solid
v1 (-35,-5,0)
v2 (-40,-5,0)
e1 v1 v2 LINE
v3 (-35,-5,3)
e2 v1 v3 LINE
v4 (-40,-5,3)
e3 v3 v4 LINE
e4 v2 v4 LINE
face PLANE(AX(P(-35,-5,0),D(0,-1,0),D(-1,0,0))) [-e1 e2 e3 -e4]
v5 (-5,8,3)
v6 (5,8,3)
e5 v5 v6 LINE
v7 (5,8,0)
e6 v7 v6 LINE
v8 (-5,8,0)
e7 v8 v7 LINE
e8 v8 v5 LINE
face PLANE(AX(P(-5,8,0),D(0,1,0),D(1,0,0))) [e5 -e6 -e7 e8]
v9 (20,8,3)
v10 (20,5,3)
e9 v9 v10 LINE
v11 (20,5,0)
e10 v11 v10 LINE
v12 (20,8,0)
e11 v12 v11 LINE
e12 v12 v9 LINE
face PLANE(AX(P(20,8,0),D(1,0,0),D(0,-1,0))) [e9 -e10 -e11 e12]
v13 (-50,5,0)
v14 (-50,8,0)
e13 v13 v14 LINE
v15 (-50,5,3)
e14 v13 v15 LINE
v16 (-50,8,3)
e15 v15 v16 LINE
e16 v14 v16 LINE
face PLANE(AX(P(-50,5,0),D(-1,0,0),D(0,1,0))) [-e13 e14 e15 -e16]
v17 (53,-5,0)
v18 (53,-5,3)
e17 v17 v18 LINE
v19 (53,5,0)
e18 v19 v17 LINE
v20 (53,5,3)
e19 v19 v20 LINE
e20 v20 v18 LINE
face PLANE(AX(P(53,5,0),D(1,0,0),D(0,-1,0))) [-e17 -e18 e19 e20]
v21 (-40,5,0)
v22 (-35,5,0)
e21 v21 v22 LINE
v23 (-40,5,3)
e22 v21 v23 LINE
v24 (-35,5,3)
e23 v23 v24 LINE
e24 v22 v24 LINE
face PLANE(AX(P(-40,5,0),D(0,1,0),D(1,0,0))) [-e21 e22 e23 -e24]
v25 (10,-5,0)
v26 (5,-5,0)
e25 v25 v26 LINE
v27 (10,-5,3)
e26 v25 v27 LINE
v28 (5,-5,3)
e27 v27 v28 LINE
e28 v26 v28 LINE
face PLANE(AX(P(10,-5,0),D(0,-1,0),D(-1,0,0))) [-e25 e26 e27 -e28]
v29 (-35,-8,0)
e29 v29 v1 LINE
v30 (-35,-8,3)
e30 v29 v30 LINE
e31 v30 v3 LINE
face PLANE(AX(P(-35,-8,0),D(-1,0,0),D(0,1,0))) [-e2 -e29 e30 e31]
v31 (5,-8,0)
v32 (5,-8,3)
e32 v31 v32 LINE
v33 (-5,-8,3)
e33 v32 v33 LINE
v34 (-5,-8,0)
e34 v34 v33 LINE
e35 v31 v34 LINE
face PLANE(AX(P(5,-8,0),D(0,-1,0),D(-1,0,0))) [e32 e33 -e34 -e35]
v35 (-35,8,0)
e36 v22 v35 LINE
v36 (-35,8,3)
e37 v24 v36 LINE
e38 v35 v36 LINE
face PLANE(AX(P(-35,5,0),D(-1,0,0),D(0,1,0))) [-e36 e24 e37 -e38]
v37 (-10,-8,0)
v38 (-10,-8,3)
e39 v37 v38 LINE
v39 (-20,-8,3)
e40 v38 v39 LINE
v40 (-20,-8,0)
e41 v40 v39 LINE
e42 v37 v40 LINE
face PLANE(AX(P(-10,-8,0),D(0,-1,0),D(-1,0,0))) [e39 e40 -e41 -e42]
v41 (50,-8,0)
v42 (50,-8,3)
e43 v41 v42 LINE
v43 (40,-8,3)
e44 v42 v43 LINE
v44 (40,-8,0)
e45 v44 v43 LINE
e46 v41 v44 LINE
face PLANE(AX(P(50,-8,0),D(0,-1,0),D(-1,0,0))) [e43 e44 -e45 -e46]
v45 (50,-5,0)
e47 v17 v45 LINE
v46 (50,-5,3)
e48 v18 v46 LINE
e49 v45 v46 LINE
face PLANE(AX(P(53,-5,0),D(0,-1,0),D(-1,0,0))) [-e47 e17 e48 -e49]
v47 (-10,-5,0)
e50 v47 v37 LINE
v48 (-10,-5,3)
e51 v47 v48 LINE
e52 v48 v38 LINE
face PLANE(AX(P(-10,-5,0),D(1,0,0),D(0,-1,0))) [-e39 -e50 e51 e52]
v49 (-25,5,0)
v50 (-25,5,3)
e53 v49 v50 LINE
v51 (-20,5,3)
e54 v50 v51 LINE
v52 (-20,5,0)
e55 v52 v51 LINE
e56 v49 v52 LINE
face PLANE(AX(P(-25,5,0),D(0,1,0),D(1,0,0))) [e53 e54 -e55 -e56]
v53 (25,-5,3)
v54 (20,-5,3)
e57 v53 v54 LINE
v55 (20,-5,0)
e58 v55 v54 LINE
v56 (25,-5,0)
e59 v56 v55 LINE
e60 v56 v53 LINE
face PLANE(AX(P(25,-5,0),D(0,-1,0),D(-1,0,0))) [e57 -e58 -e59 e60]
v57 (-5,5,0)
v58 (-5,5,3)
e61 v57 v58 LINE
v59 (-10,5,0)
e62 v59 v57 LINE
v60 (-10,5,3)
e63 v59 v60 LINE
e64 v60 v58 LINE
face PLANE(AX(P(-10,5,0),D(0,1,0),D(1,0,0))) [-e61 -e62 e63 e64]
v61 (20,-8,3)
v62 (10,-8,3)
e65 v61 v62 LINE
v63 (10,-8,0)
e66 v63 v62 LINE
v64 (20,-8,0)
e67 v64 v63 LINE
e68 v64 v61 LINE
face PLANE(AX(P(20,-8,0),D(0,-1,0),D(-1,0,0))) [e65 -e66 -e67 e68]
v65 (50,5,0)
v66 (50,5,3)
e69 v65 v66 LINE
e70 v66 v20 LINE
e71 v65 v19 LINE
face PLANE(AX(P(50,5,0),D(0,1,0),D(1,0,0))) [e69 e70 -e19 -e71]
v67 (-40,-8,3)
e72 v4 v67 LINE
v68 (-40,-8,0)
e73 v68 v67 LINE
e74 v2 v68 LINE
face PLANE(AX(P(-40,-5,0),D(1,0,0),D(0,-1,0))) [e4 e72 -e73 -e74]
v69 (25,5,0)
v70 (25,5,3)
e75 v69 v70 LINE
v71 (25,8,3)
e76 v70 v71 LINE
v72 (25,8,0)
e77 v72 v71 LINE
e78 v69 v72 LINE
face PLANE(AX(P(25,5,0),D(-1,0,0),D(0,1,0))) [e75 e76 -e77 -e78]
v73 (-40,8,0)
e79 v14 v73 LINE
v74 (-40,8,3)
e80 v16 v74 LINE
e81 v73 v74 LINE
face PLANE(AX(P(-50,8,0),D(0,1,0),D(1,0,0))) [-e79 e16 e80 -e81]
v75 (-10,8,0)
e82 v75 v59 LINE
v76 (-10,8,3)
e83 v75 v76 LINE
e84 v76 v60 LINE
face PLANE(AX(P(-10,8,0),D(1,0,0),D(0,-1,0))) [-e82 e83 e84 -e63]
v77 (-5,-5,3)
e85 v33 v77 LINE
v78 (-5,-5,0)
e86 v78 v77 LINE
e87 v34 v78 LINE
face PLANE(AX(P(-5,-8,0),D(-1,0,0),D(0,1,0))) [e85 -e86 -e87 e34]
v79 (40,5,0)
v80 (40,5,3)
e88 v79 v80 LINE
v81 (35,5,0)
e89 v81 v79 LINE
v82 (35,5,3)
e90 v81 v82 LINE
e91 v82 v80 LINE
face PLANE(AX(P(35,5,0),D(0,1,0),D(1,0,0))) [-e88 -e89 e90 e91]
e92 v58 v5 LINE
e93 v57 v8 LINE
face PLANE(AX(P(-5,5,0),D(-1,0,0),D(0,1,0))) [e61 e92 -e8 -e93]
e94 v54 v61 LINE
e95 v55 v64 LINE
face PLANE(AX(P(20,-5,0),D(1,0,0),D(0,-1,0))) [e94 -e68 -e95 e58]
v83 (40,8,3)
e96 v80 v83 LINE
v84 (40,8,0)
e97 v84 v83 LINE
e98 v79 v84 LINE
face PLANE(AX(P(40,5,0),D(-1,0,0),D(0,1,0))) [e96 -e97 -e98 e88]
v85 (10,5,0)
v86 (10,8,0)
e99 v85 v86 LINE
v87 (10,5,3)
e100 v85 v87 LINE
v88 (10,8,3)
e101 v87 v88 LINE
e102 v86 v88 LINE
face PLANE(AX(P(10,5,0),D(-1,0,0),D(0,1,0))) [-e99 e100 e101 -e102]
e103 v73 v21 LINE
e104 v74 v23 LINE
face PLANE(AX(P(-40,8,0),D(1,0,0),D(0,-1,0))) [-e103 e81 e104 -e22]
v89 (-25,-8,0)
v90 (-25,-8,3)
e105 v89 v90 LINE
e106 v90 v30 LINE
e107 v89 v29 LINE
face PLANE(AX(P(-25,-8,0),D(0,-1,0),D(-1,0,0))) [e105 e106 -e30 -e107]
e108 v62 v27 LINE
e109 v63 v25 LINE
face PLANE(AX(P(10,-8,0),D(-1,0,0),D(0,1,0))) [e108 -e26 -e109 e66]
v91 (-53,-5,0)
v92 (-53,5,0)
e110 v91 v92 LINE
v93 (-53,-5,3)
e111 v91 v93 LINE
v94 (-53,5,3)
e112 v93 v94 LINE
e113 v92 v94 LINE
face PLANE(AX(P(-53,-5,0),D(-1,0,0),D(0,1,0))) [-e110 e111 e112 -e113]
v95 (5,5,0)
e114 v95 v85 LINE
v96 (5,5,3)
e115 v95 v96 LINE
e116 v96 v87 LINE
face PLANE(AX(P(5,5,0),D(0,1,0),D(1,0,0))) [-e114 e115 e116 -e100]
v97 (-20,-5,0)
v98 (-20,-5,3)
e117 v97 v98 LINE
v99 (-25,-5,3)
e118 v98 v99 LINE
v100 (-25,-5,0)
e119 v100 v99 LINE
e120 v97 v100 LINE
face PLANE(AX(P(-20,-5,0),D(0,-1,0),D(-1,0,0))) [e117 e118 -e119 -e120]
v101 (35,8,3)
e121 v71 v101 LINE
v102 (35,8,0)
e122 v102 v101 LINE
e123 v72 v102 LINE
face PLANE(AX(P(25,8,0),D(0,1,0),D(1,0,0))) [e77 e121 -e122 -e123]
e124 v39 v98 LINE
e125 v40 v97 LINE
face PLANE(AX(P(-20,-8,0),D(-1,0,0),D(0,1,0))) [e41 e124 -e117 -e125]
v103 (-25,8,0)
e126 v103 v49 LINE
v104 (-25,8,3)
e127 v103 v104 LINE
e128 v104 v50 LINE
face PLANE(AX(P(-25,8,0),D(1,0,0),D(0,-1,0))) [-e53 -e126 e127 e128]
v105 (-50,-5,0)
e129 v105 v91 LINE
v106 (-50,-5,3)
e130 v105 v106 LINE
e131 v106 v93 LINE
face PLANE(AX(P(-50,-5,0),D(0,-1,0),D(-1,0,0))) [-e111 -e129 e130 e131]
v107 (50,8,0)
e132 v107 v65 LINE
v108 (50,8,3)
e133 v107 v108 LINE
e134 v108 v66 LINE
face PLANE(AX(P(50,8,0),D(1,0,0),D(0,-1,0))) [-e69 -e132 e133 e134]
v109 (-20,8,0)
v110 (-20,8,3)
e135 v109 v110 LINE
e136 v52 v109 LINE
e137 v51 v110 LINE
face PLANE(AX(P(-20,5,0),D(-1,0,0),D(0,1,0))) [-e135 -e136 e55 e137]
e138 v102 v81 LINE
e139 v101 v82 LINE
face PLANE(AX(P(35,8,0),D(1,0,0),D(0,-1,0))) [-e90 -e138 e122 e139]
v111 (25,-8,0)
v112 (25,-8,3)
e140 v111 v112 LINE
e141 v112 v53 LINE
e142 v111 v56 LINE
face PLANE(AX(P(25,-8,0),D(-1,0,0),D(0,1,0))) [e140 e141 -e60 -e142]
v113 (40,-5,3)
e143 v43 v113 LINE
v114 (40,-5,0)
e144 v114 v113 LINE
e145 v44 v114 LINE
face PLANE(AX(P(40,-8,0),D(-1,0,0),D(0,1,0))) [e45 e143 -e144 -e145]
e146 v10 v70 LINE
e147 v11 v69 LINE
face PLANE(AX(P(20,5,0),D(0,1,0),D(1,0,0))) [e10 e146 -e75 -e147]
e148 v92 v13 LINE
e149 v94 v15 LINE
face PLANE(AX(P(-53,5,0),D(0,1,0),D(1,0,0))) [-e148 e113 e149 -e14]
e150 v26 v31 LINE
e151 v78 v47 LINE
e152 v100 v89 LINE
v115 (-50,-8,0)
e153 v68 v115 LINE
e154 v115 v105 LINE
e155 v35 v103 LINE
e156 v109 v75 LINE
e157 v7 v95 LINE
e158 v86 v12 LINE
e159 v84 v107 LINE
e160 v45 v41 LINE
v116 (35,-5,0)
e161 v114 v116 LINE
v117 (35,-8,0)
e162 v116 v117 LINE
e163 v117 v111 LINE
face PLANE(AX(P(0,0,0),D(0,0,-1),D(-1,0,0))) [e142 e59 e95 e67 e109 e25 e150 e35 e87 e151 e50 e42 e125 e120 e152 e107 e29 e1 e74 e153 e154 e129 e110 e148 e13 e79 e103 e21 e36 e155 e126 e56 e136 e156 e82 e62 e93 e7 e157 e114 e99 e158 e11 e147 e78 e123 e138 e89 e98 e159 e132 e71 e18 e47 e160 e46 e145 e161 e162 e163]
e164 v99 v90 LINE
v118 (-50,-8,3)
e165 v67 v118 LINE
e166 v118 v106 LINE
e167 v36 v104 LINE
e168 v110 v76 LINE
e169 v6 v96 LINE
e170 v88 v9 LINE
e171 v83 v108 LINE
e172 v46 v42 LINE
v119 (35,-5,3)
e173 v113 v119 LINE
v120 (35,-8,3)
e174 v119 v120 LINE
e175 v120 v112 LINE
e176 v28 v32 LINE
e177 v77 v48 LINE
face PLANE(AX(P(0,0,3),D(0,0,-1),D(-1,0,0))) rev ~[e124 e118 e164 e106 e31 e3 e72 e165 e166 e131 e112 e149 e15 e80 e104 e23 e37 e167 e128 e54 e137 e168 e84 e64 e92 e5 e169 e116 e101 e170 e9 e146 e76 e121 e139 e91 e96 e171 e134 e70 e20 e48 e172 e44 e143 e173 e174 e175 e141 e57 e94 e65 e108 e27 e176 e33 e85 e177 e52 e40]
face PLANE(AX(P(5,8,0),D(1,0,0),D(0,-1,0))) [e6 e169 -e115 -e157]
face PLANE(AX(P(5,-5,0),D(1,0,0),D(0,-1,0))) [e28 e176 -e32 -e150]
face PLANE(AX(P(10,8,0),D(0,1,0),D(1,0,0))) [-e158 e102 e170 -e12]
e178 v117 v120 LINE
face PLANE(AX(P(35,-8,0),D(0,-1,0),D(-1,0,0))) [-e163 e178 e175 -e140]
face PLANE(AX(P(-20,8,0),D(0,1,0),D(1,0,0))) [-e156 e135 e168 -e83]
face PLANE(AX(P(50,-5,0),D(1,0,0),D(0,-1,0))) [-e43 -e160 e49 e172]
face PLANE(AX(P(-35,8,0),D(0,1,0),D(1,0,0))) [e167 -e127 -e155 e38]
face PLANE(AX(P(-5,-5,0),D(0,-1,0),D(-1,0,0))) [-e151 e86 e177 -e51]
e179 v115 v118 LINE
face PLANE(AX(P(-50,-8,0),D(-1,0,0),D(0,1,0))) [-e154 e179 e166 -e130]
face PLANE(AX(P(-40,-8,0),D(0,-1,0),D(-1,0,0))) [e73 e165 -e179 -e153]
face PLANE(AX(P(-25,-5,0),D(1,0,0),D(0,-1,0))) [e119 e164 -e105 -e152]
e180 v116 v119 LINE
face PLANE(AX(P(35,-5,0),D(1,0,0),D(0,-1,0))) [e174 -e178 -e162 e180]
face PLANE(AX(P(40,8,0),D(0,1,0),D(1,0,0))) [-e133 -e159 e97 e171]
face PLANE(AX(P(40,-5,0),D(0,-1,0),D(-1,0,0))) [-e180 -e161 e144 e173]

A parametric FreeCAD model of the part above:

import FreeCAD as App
import Part
import Sketcher
from FreeCAD import Vector


def add_polygon(sketch, points):
    """Adds a closed chain of lines whose ends are joined by coincident constraints."""
    first, n = sketch.GeometryCount, len(points)
    for a, b in zip(points, points[1:] + points[:1]):
        sketch.addGeometry(Part.LineSegment(App.Vector(*a, 0), App.Vector(*b, 0)), False)
    for i in range(n):
        sketch.addConstraint(Sketcher.Constraint("Coincident", first + i, 2, first + (i + 1) % n, 1))

doc = App.newDocument("Part")
body = doc.addObject("PartDesign::Body", "Body")

sketch1 = doc.addObject("Sketcher::SketchObject", "Sketch")
body.addObject(sketch1)
sketch1.AttachmentSupport = (doc.XY_Plane, [""])
sketch1.MapMode = "FlatFace"
add_polygon(sketch1, [(-35, 8), (-35, 5), (-40, 5), (-40, 8), (-50, 8), (-50, 5), (-53, 5), (-53, -5), (-50, -5), (-50, -8), (-40, -8), (-40, -5), (-35, -5), (-35, -8), (-25, -8), (-25, -5), (-20, -5), (-20, -8), (-10, -8), (-10, -5), (-5, -5), (-5, -8), (5, -8), (5, -5), (10, -5), (10, -8), (20, -8), (20, -5), (25, -5), (25, -8), (35, -8), (35, -5), (40, -5), (40, -8), (50, -8), (50, -5), (53, -5), (53, 5), (50, 5), (50, 8), (40, 8), (40, 5), (35, 5), (35, 8), (25, 8), (25, 5), (20, 5), (20, 8), (10, 8), (10, 5), (5, 5), (5, 8), (-5, 8), (-5, 5), (-10, 5), (-10, 8), (-20, 8), (-20, 5), (-25, 5), (-25, 8)])
sketch1.addConstraint([
    Sketcher.Constraint("Vertical", 0),
    Sketcher.Constraint("Horizontal", 1),
    Sketcher.Constraint("Vertical", 2),
    Sketcher.Constraint("Horizontal", 3),
    Sketcher.Constraint("Vertical", 4),
    Sketcher.Constraint("Horizontal", 5),
    Sketcher.Constraint("Vertical", 6),
    Sketcher.Constraint("Horizontal", 7),
    Sketcher.Constraint("Vertical", 8),
    Sketcher.Constraint("Horizontal", 9),
    Sketcher.Constraint("Vertical", 10),
    Sketcher.Constraint("Horizontal", 11),
    Sketcher.Constraint("Vertical", 12),
    Sketcher.Constraint("Horizontal", 13),
    Sketcher.Constraint("Vertical", 14),
    Sketcher.Constraint("Horizontal", 15),
    Sketcher.Constraint("Vertical", 16),
    Sketcher.Constraint("Horizontal", 17),
    Sketcher.Constraint("Vertical", 18),
    Sketcher.Constraint("Horizontal", 19),
    Sketcher.Constraint("Vertical", 20),
    Sketcher.Constraint("Horizontal", 21),
    Sketcher.Constraint("Vertical", 22),
    Sketcher.Constraint("Horizontal", 23),
    Sketcher.Constraint("Vertical", 24),
    Sketcher.Constraint("Horizontal", 25),
    Sketcher.Constraint("Vertical", 26),
    Sketcher.Constraint("Horizontal", 27),
    Sketcher.Constraint("Vertical", 28),
    Sketcher.Constraint("Horizontal", 29),
    Sketcher.Constraint("Vertical", 30),
    Sketcher.Constraint("Horizontal", 31),
    Sketcher.Constraint("Vertical", 32),
    Sketcher.Constraint("Horizontal", 33),
    Sketcher.Constraint("Vertical", 34),
    Sketcher.Constraint("Horizontal", 35),
    Sketcher.Constraint("Vertical", 36),
    Sketcher.Constraint("Horizontal", 37),
    Sketcher.Constraint("Vertical", 38),
    Sketcher.Constraint("Horizontal", 39),
    Sketcher.Constraint("Vertical", 40),
    Sketcher.Constraint("Horizontal", 41),
    Sketcher.Constraint("Vertical", 42),
    Sketcher.Constraint("Horizontal", 43),
    Sketcher.Constraint("Vertical", 44),
    Sketcher.Constraint("Horizontal", 45),
    Sketcher.Constraint("Vertical", 46),
    Sketcher.Constraint("Horizontal", 47),
    Sketcher.Constraint("Vertical", 48),
    Sketcher.Constraint("Horizontal", 49),
    Sketcher.Constraint("Vertical", 50),
    Sketcher.Constraint("Horizontal", 51),
    Sketcher.Constraint("Vertical", 52),
    Sketcher.Constraint("Horizontal", 53),
    Sketcher.Constraint("Vertical", 54),
    Sketcher.Constraint("Horizontal", 55),
    Sketcher.Constraint("Vertical", 56),
    Sketcher.Constraint("Horizontal", 57),
    Sketcher.Constraint("Vertical", 58),
    Sketcher.Constraint("Horizontal", 59),
    Sketcher.Constraint("Symmetric", 0, 2, 30, 2, -1, 1),
    Sketcher.Constraint("Symmetric", 2, 2, 32, 2, -1, 1),
    Sketcher.Constraint("Symmetric", 4, 2, 34, 2, -1, 1),
    Sketcher.Constraint("Symmetric", 6, 2, 36, 2, -1, 1),
    Sketcher.Constraint("Symmetric", 8, 2, 38, 2, -1, 1),
    Sketcher.Constraint("Symmetric", 10, 2, 40, 2, -1, 1),
    Sketcher.Constraint("Symmetric", 12, 2, 42, 2, -1, 1),
    Sketcher.Constraint("Symmetric", 14, 2, 44, 2, -1, 1),
    Sketcher.Constraint("Symmetric", 16, 2, 46, 2, -1, 1),
    Sketcher.Constraint("Symmetric", 18, 2, 48, 2, -1, 1),
    Sketcher.Constraint("Symmetric", 20, 2, 50, 2, -1, 1),
    Sketcher.Constraint("Symmetric", 22, 2, 52, 2, -1, 1),
    Sketcher.Constraint("Symmetric", 24, 2, 54, 2, -1, 1),
    Sketcher.Constraint("Symmetric", 26, 2, 56, 2, -1, 1),
    Sketcher.Constraint("Symmetric", 28, 2, 58, 2, -1, 1),
    Sketcher.Constraint("Symmetric", 19, 2, 22, 2, -2),
    Sketcher.Constraint("Symmetric", 17, 2, 24, 2, -2),
    Sketcher.Constraint("Symmetric", 15, 2, 26, 2, -2),
    Sketcher.Constraint("Symmetric", 13, 2, 28, 2, -2),
    Sketcher.Constraint("Symmetric", 11, 2, 30, 2, -2),
    Sketcher.Constraint("Symmetric", 9, 2, 32, 2, -2),
    Sketcher.Constraint("Symmetric", 7, 2, 34, 2, -2),
    Sketcher.Constraint("Horizontal", 1, 2, 4, 2),
    Sketcher.Constraint("Horizontal", 9, 2, 12, 2),
    Sketcher.Constraint("Horizontal", 11, 2, 14, 2),
    Sketcher.Constraint("Horizontal", 13, 2, 16, 2),
    Sketcher.Constraint("Horizontal", 15, 2, 18, 2),
    Sketcher.Constraint("Horizontal", 17, 2, 20, 2),
    Sketcher.Constraint("Equal", 9, 13),
    Sketcher.Constraint("Equal", 11, 15),
    Sketcher.Constraint("Equal", 13, 17),
    Sketcher.Constraint("Equal", 15, 19),
    Sketcher.Constraint("Equal", 17, 21),
    Sketcher.Constraint("Equal", 37, 0),
    Sketcher.Constraint("Equal", 59, 6),
    Sketcher.Constraint("DistanceX", 1, 2, 1, 1, 5.0),
    Sketcher.Constraint("DistanceX", 3, 2, 3, 1, 10.0),
    Sketcher.Constraint("DistanceX", 5, 2, 5, 1, 3.0),
])
pad1 = doc.addObject("PartDesign::Pad", "Pad")
body.addObject(pad1)
pad1.Profile = sketch1
pad1.Length = 3

doc.recompute()
